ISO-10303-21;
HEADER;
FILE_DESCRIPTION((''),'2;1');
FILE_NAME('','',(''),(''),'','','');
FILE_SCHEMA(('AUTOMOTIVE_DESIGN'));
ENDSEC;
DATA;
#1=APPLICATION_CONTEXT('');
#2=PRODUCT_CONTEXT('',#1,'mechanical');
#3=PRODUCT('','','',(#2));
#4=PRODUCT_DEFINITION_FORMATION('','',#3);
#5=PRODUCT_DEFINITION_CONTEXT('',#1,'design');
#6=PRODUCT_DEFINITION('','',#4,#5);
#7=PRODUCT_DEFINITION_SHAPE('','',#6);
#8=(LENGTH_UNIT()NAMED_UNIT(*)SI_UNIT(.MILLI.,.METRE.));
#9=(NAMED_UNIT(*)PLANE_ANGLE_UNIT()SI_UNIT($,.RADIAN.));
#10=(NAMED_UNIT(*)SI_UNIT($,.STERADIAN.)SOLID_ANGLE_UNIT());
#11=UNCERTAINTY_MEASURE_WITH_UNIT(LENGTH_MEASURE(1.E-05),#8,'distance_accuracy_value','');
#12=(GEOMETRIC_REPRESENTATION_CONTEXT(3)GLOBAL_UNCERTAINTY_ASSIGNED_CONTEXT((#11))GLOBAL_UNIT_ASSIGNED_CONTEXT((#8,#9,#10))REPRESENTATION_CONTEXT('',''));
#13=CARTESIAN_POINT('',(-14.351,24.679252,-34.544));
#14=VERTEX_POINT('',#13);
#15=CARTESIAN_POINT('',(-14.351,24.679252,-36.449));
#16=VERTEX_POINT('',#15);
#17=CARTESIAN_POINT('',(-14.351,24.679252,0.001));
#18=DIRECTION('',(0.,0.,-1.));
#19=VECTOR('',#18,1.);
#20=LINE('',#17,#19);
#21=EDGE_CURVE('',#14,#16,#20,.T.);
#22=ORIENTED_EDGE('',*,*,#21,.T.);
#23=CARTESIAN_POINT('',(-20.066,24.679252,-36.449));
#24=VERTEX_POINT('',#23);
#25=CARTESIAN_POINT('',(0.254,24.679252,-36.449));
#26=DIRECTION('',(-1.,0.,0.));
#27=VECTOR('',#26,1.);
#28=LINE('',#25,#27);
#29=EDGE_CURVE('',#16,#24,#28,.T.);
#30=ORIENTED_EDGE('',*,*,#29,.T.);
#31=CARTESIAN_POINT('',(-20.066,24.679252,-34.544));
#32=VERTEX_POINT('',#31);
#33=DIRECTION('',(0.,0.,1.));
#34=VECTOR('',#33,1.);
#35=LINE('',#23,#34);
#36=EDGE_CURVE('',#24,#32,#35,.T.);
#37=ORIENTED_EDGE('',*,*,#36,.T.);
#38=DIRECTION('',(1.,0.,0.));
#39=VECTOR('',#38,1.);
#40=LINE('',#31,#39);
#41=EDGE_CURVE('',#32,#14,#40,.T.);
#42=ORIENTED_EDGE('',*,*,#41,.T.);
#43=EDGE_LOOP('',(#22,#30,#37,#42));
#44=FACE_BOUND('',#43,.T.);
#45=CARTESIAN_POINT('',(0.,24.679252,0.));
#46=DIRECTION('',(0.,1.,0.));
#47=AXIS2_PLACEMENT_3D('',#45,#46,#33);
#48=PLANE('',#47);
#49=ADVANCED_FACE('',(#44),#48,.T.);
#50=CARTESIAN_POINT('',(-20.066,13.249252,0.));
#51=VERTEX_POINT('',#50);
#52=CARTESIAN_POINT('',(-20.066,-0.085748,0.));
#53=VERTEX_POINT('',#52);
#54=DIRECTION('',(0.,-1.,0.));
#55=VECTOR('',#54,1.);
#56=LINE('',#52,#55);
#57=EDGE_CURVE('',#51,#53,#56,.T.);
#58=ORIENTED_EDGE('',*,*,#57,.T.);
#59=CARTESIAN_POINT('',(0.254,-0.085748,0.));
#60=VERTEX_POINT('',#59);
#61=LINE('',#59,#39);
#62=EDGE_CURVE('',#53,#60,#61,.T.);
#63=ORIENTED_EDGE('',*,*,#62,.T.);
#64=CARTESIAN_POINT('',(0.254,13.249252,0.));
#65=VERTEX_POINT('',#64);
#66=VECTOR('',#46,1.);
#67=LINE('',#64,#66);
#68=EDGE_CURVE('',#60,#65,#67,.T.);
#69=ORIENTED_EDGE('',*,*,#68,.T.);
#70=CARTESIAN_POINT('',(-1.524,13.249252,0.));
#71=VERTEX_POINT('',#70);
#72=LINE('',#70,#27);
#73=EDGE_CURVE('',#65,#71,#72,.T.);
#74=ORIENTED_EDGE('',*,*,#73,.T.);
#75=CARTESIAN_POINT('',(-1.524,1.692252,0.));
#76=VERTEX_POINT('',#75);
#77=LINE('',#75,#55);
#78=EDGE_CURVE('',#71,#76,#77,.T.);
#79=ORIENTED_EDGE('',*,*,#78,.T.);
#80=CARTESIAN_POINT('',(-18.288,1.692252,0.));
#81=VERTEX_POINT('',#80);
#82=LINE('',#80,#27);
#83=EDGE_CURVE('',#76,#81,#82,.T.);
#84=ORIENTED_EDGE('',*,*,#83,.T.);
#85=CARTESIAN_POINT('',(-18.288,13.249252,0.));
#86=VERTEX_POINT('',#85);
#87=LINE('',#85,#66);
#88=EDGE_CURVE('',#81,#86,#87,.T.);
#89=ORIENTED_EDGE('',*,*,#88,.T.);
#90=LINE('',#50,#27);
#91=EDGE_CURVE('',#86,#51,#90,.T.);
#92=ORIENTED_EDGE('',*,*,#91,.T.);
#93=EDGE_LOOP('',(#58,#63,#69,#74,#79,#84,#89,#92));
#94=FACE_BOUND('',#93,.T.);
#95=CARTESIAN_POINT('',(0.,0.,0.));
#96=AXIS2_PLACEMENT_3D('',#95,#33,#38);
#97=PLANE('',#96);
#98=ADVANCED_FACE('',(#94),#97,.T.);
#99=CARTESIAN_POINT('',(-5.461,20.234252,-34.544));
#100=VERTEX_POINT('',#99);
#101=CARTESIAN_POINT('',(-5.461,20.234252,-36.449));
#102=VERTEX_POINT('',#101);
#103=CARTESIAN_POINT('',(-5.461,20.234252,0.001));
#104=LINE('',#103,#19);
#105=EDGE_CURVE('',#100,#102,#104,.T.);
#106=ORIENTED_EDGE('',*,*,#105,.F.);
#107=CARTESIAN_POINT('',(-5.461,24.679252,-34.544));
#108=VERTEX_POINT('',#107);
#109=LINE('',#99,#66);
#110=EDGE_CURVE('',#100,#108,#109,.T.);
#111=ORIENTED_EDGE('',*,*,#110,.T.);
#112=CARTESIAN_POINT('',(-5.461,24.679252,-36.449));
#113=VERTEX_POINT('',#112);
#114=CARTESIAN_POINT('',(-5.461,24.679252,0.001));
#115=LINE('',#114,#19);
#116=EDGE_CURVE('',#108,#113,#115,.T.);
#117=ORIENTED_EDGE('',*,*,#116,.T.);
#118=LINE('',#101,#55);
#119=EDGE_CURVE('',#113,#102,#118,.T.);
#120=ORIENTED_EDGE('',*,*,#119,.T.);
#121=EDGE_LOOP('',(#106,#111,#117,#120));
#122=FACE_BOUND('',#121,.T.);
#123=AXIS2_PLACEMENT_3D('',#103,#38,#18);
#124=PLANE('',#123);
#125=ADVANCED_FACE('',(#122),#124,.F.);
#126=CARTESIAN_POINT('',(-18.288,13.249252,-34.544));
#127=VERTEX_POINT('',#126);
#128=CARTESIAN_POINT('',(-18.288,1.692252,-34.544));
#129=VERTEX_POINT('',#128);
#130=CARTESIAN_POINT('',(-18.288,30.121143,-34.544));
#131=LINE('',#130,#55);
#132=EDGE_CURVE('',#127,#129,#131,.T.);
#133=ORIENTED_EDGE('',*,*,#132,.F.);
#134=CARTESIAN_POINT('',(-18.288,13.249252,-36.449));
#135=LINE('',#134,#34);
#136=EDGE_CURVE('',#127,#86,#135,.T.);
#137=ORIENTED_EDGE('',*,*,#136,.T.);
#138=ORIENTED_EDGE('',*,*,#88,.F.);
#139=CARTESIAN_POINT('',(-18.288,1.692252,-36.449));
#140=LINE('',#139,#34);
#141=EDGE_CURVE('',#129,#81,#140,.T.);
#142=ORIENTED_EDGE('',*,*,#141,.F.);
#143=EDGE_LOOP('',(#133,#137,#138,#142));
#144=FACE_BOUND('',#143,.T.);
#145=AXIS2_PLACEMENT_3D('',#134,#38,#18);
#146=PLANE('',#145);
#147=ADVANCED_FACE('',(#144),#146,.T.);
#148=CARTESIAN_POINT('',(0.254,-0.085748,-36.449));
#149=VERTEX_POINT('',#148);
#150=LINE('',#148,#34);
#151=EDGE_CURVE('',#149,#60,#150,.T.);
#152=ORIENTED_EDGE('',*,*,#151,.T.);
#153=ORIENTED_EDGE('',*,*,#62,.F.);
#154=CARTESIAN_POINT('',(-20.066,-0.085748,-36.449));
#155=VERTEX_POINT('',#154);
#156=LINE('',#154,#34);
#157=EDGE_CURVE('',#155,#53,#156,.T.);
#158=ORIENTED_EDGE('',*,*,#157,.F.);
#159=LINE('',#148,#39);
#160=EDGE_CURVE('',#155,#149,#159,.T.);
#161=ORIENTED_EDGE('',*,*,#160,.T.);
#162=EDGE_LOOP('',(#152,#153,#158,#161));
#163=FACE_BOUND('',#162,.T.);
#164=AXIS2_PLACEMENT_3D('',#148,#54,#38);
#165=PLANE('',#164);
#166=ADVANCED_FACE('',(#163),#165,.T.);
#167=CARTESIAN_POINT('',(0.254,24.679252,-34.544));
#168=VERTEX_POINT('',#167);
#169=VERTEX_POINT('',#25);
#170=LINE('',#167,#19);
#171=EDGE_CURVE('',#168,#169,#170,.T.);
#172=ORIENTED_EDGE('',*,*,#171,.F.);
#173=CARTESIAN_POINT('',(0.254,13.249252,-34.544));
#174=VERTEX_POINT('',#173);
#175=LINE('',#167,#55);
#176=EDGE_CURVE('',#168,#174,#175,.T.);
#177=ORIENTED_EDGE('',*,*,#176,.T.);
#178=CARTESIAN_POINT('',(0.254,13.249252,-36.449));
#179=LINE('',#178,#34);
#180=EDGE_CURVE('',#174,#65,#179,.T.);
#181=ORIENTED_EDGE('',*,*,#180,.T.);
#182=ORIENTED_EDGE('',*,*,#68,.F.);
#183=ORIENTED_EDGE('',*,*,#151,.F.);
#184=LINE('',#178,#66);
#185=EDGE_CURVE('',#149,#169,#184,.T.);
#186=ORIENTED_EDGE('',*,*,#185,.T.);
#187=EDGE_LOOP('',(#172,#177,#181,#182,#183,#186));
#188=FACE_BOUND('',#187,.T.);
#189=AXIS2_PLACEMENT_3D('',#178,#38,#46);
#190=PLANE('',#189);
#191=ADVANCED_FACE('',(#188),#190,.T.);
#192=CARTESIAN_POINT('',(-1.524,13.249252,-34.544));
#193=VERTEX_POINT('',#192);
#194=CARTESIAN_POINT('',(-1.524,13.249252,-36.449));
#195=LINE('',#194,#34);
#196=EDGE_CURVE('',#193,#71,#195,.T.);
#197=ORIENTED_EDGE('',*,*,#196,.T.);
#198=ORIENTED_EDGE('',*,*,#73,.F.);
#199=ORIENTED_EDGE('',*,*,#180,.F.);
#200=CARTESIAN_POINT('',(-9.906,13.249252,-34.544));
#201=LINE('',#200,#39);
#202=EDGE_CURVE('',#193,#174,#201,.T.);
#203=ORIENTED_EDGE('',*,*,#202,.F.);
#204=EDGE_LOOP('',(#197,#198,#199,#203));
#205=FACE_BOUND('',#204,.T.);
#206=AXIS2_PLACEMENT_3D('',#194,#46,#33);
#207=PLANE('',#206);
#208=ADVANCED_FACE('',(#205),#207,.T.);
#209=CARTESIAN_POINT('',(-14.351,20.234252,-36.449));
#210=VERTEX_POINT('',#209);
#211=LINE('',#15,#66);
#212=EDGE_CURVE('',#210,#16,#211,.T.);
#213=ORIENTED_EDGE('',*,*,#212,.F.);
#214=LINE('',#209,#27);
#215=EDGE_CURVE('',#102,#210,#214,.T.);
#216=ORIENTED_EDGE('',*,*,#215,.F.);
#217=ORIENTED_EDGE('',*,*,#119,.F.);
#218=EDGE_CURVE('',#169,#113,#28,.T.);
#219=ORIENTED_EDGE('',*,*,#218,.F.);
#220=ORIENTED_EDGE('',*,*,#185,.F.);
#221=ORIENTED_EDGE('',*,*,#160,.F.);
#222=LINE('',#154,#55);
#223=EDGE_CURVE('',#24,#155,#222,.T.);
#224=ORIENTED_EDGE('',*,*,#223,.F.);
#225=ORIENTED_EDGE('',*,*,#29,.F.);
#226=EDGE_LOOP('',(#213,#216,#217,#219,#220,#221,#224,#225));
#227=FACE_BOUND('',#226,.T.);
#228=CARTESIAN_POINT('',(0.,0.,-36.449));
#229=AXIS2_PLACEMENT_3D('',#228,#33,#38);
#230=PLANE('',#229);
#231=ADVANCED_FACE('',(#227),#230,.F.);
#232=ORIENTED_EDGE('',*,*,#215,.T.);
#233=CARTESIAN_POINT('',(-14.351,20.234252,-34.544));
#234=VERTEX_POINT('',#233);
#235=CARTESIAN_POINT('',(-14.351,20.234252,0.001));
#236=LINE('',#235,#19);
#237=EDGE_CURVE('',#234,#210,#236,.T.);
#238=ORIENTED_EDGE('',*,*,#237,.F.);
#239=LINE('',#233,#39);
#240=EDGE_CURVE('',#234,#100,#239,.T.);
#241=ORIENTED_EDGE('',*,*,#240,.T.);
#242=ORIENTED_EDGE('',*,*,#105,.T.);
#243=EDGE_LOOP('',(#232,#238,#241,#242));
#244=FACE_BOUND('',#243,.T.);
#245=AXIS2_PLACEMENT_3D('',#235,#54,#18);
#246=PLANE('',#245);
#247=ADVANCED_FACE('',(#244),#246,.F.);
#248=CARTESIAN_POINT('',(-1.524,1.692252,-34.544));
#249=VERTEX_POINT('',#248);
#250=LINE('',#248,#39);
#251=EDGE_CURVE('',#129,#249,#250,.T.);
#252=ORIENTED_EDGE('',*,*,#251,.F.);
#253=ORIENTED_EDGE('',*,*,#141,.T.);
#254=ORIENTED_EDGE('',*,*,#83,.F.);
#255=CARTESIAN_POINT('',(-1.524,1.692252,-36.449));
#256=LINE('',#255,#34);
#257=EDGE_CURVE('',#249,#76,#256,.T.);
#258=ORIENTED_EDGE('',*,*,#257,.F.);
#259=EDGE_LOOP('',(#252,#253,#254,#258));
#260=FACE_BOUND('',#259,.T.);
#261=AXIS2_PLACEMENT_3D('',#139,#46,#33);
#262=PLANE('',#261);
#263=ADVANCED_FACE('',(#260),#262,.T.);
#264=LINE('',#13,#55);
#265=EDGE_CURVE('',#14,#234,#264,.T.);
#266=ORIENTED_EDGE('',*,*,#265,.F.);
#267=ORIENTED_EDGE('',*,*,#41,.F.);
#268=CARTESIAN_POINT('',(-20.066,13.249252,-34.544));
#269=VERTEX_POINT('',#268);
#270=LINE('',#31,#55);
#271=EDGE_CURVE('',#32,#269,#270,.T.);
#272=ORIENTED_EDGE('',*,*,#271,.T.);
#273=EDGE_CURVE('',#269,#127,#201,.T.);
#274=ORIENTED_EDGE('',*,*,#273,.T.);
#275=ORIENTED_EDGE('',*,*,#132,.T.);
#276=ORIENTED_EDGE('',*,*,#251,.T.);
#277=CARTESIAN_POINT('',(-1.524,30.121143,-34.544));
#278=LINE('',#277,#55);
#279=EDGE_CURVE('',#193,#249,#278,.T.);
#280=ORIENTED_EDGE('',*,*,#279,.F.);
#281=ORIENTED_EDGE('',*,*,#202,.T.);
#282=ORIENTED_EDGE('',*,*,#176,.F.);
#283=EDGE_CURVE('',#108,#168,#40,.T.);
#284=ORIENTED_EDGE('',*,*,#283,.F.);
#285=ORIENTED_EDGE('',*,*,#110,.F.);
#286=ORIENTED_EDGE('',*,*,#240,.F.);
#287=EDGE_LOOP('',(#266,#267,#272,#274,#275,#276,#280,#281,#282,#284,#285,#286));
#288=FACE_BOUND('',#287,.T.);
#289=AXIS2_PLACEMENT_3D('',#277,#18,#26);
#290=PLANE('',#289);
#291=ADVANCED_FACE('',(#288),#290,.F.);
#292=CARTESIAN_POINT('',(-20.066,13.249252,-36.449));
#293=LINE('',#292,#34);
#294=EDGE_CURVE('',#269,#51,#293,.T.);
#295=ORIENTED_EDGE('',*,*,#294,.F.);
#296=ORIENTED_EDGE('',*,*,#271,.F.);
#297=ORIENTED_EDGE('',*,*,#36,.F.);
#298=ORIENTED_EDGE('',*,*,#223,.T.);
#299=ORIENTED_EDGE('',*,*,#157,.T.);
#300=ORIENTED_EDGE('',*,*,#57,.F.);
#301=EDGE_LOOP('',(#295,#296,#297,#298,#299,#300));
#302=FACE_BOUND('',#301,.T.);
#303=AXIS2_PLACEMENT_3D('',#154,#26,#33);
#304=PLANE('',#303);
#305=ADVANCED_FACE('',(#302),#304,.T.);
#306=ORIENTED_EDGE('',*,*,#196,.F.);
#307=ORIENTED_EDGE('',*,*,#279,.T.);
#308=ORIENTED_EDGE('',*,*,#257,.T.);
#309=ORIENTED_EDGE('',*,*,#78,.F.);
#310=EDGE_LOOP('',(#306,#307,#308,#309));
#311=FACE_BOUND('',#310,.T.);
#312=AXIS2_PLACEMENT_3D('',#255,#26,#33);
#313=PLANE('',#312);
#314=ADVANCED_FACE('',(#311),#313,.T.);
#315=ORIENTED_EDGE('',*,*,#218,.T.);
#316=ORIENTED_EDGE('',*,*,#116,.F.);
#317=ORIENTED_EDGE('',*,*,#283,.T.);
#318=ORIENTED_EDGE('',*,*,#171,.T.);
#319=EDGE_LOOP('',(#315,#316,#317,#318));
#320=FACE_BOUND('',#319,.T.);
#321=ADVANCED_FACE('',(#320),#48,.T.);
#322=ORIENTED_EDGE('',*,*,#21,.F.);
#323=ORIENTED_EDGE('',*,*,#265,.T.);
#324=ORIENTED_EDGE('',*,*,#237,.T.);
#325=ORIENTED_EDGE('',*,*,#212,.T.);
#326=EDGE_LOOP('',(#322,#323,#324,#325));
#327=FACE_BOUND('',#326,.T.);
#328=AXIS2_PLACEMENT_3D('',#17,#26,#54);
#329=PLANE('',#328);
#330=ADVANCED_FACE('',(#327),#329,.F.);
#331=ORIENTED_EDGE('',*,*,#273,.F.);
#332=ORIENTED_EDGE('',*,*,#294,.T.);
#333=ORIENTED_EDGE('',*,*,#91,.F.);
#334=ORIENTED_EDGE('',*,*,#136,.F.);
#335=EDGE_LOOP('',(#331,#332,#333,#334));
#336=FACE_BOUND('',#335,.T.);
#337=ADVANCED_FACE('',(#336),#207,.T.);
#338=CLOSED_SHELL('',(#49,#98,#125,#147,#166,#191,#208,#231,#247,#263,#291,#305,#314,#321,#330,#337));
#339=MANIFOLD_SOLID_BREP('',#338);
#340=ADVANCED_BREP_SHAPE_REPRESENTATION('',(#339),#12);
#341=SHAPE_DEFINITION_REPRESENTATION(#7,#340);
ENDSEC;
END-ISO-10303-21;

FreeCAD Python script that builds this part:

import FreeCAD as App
import Part
import Sketcher
from FreeCAD import Vector
Q = App.Units.Quantity

doc = App.newDocument("Part")
body = doc.addObject("PartDesign::Body", "Body")

# Sketch on XY plane
sketch1 = body.newObject("Sketcher::SketchObject", "Sketch")
sketch1.AttachmentSupport = (doc.getObject("XY_Plane"), [""])
sketch1.MapMode = "FlatFace"
sketch1.addGeometry([
    Part.LineSegment(Vector(-1.5, 13.2, 0), Vector(-1.5, 1.7, 0)),  # 0
    Part.LineSegment(Vector(-1.5, 1.7, 0), Vector(-18.3, 1.7, 0)),  # 1
    Part.LineSegment(Vector(-18.3, 1.7, 0), Vector(-18.3, 13.2, 0)),  # 2
    Part.LineSegment(Vector(-18.3, 13.2, 0), Vector(-20.1, 13.2, 0)),  # 3
    Part.LineSegment(Vector(-20.1, 13.2, 0), Vector(-20.1, -0.1, 0)),  # 4
    Part.LineSegment(Vector(-20.1, -0.1, 0), Vector(0.3, -0.1, 0)),  # 5
    Part.LineSegment(Vector(0.3, -0.1, 0), Vector(0.3, 13.2, 0)),  # 6
    Part.LineSegment(Vector(0.3, 13.2, 0), Vector(-1.5, 13.2, 0)),  # 7
], False)
sketch1.addConstraint([
    Sketcher.Constraint("Coincident", 0, 2, 1, 1),
    Sketcher.Constraint("Coincident", 1, 2, 2, 1),
    Sketcher.Constraint("Coincident", 2, 2, 3, 1),
    Sketcher.Constraint("Coincident", 3, 2, 4, 1),
    Sketcher.Constraint("Coincident", 4, 2, 5, 1),
    Sketcher.Constraint("Coincident", 5, 2, 6, 1),
    Sketcher.Constraint("Coincident", 6, 2, 7, 1),
    Sketcher.Constraint("Coincident", 7, 2, 0, 1),
    Sketcher.Constraint("Vertical", 0),
    Sketcher.Constraint("Horizontal", 1),
    Sketcher.Constraint("Vertical", 2),
    Sketcher.Constraint("Horizontal", 3),
    Sketcher.Constraint("Vertical", 4),
    Sketcher.Constraint("Horizontal", 5),
    Sketcher.Constraint("Vertical", 6),
    Sketcher.Constraint("Horizontal", 7),
    Sketcher.Constraint("Horizontal", 3, 2, 6, 2),
    Sketcher.Constraint("Equal", 3, 7),
    Sketcher.Constraint("DistanceX", 5, 1, 5, 2, Q("0.8 in")),
    Sketcher.Constraint("DistanceX", 1, 2, 1, 1, Q("0.66 in")),
    Sketcher.Constraint("DistanceY", 0, 2, 0, 1, Q("0.455 in")),
    Sketcher.Constraint("DistanceY", 4, 2, 4, 1, Q("0.525 in")),
    Sketcher.Constraint("DistanceX", 0, 2, -1, 1, Q("0.06 in")),
    Sketcher.Constraint("DistanceY", -1, 1, 0, 2, Q("1.692252 mm")),
])
pad1 = body.newObject("PartDesign::Pad", "Pad")
pad1.Profile = sketch1
pad1.Length = Q("1.435 in")
pad1.Reversed = True

# Sketch on XZ plane
sketch2 = body.newObject("Sketcher::SketchObject", "Sketch001")
sketch2.AttachmentSupport = (doc.getObject("XZ_Plane"), [""])
sketch2.MapMode = "FlatFace"
sketch2.AttachmentOffset = App.Placement(Vector(0, 0, -1.692252), App.Rotation())
sketch2.addGeometry([
    Part.LineSegment(Vector(-18.3, -36.4, 0), Vector(-18.3, -34.5, 0)),
    Part.LineSegment(Vector(-18.3, -34.5, 0), Vector(-1.5, -34.5, 0)),
    Part.LineSegment(Vector(-1.5, -34.5, 0), Vector(-1.5, -36.4, 0)),
    Part.LineSegment(Vector(-1.5, -36.4, 0), Vector(-18.3, -36.4, 0)),
], False)
sketch2.addConstraint([
    Sketcher.Constraint("Coincident", 0, 2, 1, 1),
    Sketcher.Constraint("Coincident", 1, 2, 2, 1),
    Sketcher.Constraint("Coincident", 2, 2, 3, 1),
    Sketcher.Constraint("Coincident", 3, 2, 0, 1),
    Sketcher.Constraint("Vertical", 0),
    Sketcher.Constraint("Horizontal", 1),
    Sketcher.Constraint("Vertical", 2),
    Sketcher.Constraint("Horizontal", 3),
    Sketcher.Constraint("DistanceX", 1, 1, 1, 2, Q("0.66 in")),
    Sketcher.Constraint("DistanceY", 0, 1, 0, 2, Q("0.075 in")),
    Sketcher.Constraint("DistanceX", 0, 2, -1, 1, Q("0.72 in")),
    Sketcher.Constraint("DistanceY", 0, 2, -1, 1, Q("1.36 in")),
])
pad2 = body.newObject("PartDesign::Pad", "Pad001")
pad2.Profile = sketch2
pad2.Length = Q("0.455 in")
pad2.Reversed = True

# Sketch on XZ plane
sketch3 = body.newObject("Sketcher::SketchObject", "Sketch002")
sketch3.AttachmentSupport = (doc.getObject("XZ_Plane"), [""])
sketch3.MapMode = "FlatFace"
sketch3.AttachmentOffset = App.Placement(Vector(0, 0, -13.249252), App.Rotation())
sketch3.addGeometry([
    Part.LineSegment(Vector(0.3, -34.5, 0), Vector(0.3, -36.4, 0)),
    Part.LineSegment(Vector(0.3, -36.4, 0), Vector(-20.1, -36.4, 0)),
    Part.LineSegment(Vector(-20.1, -36.4, 0), Vector(-20.1, -34.5, 0)),
    Part.LineSegment(Vector(-20.1, -34.5, 0), Vector(0.3, -34.5, 0)),
], False)
sketch3.addConstraint([
    Sketcher.Constraint("Coincident", 0, 2, 1, 1),
    Sketcher.Constraint("Coincident", 1, 2, 2, 1),
    Sketcher.Constraint("Coincident", 2, 2, 3, 1),
    Sketcher.Constraint("Coincident", 3, 2, 0, 1),
    Sketcher.Constraint("Vertical", 0),
    Sketcher.Constraint("Horizontal", 1),
    Sketcher.Constraint("Vertical", 2),
    Sketcher.Constraint("Horizontal", 3),
    Sketcher.Constraint("DistanceX", 1, 2, 1, 1, Q("0.8 in")),
    Sketcher.Constraint("DistanceY", 0, 2, 0, 1, Q("0.075 in")),
    Sketcher.Constraint("DistanceX", -1, 1, 0, 2, Q("0.01 in")),
    Sketcher.Constraint("DistanceY", 2, 2, -1, 1, Q("1.36 in")),
])
pad3 = body.newObject("PartDesign::Pad", "Pad002")
pad3.Profile = sketch3
pad3.Length = Q("0.45 in")
pad3.Reversed = True

# Sketch on XY plane
sketch4 = body.newObject("Sketcher::SketchObject", "Sketch003")
sketch4.AttachmentSupport = (doc.getObject("XY_Plane"), [""])
sketch4.MapMode = "FlatFace"
sketch4.AttachmentOffset = App.Placement(Vector(0, 0, -1.435 * 25.4), App.Rotation())
sketch4.addGeometry([
    Part.LineSegment(Vector(-14.4, 24.7, 0), Vector(-5.5, 24.7, 0)),
    Part.LineSegment(Vector(-5.5, 24.7, 0), Vector(-5.5, 20.2, 0)),
    Part.LineSegment(Vector(-5.5, 20.2, 0), Vector(-14.4, 20.2, 0)),
    Part.LineSegment(Vector(-14.4, 20.2, 0), Vector(-14.4, 24.7, 0)),
], False)
sketch4.addConstraint([
    Sketcher.Constraint("Coincident", 0, 2, 1, 1),
    Sketcher.Constraint("Coincident", 1, 2, 2, 1),
    Sketcher.Constraint("Coincident", 2, 2, 3, 1),
    Sketcher.Constraint("Coincident", 3, 2, 0, 1),
    Sketcher.Constraint("Horizontal", 0),
    Sketcher.Constraint("Vertical", 1),
    Sketcher.Constraint("Horizontal", 2),
    Sketcher.Constraint("Vertical", 3),
    Sketcher.Constraint("DistanceX", 0, 1, 0, 2, Q("0.35 in")),
    Sketcher.Constraint("DistanceY", 1, 2, 1, 1, Q("0.175 in")),
    Sketcher.Constraint("DistanceX", 0, 2, -1, 1, Q("0.215 in")),
    Sketcher.Constraint("DistanceY", -1, 1, 0, 2, Q("24.679252 mm")),
])
pocket1 = body.newObject("PartDesign::Pocket", "Pocket")
pocket1.Profile = sketch4
pocket1.Type = "UpToFirst"
pocket1.Reversed = True

doc.recompute()
